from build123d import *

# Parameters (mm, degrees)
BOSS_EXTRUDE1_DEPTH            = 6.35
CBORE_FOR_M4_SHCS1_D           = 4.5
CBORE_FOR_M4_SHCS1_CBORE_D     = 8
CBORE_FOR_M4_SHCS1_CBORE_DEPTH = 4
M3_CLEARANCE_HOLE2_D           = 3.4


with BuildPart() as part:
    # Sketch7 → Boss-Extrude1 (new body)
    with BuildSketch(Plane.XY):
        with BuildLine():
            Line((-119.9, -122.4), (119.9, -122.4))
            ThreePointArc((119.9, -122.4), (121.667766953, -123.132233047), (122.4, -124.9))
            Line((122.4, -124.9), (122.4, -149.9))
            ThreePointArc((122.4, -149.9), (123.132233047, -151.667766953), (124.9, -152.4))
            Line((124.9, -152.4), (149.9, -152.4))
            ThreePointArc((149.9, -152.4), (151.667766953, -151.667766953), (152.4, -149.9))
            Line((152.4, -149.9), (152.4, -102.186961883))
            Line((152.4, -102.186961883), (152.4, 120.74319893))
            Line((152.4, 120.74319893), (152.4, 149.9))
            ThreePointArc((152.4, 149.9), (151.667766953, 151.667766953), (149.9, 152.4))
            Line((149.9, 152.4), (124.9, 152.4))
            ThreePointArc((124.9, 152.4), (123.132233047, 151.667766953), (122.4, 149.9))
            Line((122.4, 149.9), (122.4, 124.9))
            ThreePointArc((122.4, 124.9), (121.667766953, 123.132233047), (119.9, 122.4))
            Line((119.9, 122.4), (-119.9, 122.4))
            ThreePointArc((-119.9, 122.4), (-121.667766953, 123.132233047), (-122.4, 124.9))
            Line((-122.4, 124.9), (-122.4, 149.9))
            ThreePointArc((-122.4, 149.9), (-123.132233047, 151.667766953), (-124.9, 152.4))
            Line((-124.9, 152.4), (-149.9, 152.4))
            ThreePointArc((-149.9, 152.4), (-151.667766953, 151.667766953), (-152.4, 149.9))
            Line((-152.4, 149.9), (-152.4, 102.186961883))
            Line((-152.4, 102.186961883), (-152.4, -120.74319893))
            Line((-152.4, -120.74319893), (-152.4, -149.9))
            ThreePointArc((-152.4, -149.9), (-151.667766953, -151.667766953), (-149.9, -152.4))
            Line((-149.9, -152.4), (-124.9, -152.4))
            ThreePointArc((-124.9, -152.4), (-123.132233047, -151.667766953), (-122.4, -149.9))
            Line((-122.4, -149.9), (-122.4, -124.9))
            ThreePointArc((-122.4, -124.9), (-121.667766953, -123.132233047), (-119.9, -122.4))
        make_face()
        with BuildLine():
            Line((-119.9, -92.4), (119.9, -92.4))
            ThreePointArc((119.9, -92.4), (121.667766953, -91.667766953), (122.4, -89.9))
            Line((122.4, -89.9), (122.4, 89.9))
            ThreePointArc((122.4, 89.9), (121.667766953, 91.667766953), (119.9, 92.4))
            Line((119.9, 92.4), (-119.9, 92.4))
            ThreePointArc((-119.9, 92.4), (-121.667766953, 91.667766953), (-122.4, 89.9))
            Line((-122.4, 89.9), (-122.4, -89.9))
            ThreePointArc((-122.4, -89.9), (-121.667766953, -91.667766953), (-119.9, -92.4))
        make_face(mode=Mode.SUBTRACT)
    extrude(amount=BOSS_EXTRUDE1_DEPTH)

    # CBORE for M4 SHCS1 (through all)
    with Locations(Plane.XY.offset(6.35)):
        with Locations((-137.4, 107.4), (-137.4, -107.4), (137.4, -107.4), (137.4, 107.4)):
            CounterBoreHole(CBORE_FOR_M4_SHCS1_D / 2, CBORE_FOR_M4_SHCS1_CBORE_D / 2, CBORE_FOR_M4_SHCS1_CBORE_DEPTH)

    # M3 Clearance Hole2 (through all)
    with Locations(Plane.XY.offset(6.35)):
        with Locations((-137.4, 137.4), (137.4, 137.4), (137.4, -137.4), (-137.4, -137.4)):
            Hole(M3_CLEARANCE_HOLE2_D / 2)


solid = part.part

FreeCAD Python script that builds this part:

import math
import FreeCAD as App
import Part
import Sketcher
from FreeCAD import Vector
Q = App.Units.Quantity

doc = App.newDocument("Part")
body = doc.addObject("PartDesign::Body", "Body")

# Sketch on XY plane
sketch1 = body.newObject("Sketcher::SketchObject", "Sketch")
sketch1.AttachmentSupport = (doc.getObject("XY_Plane"), [""])
sketch1.MapMode = "FlatFace"
sketch1.addGeometry(Part.LineSegment(Vector(-119.9, -122.4, 0), Vector(119.9, -122.4, 0)), False)
sketch1.addGeometry(Part.ArcOfCircle(Part.Circle(Vector(119.9, -124.9, 0), Vector(0, 0, 1), 2.5), math.radians(0), math.radians(90)), False)
sketch1.addGeometry(Part.LineSegment(Vector(122.4, -124.9, 0), Vector(122.4, -149.9, 0)), False)
sketch1.addGeometry(Part.ArcOfCircle(Part.Circle(Vector(124.9, -149.9, 0), Vector(0, 0, 1), 2.5), math.radians(180), math.radians(270)), False)
sketch1.addGeometry(Part.LineSegment(Vector(124.9, -152.4, 0), Vector(149.9, -152.4, 0)), False)
sketch1.addGeometry(Part.ArcOfCircle(Part.Circle(Vector(149.9, -149.9, 0), Vector(0, 0, 1), 2.5), math.radians(-90), math.radians(0)), False)
sketch1.addGeometry(Part.LineSegment(Vector(152.4, -149.9, 0), Vector(152.4, 149.9, 0)), False)
sketch1.addGeometry(Part.ArcOfCircle(Part.Circle(Vector(149.9, 149.9, 0), Vector(0, 0, 1), 2.5), math.radians(0), math.radians(90)), False)
sketch1.addGeometry(Part.LineSegment(Vector(149.9, 152.4, 0), Vector(124.9, 152.4, 0)), False)
sketch1.addGeometry(Part.ArcOfCircle(Part.Circle(Vector(124.9, 149.9, 0), Vector(0, 0, 1), 2.5), math.radians(90), math.radians(180)), False)
sketch1.addGeometry(Part.LineSegment(Vector(122.4, 149.9, 0), Vector(122.4, 124.9, 0)), False)
sketch1.addGeometry(Part.ArcOfCircle(Part.Circle(Vector(119.9, 124.9, 0), Vector(0, 0, 1), 2.5), math.radians(-90), math.radians(0)), False)
sketch1.addGeometry(Part.LineSegment(Vector(119.9, 122.4, 0), Vector(-119.9, 122.4, 0)), False)
sketch1.addGeometry(Part.ArcOfCircle(Part.Circle(Vector(-119.9, 124.9, 0), Vector(0, 0, 1), 2.5), math.radians(180), math.radians(270)), False)
sketch1.addGeometry(Part.LineSegment(Vector(-122.4, 124.9, 0), Vector(-122.4, 149.9, 0)), False)
sketch1.addGeometry(Part.ArcOfCircle(Part.Circle(Vector(-124.9, 149.9, 0), Vector(0, 0, 1), 2.5), math.radians(0), math.radians(90)), False)
sketch1.addGeometry(Part.LineSegment(Vector(-124.9, 152.4, 0), Vector(-149.9, 152.4, 0)), False)
sketch1.addGeometry(Part.ArcOfCircle(Part.Circle(Vector(-149.9, 149.9, 0), Vector(0, 0, 1), 2.5), math.radians(90), math.radians(180)), False)
sketch1.addGeometry(Part.LineSegment(Vector(-152.4, 149.9, 0), Vector(-152.4, -149.9, 0)), False)
sketch1.addGeometry(Part.ArcOfCircle(Part.Circle(Vector(-149.9, -149.9, 0), Vector(0, 0, 1), 2.5), math.radians(180), math.radians(270)), False)
sketch1.addGeometry(Part.LineSegment(Vector(-149.9, -152.4, 0), Vector(-124.9, -152.4, 0)), False)
sketch1.addGeometry(Part.ArcOfCircle(Part.Circle(Vector(-124.9, -149.9, 0), Vector(0, 0, 1), 2.5), math.radians(-90), math.radians(0)), False)
sketch1.addGeometry(Part.LineSegment(Vector(-122.4, -149.9, 0), Vector(-122.4, -124.9, 0)), False)
sketch1.addGeometry(Part.ArcOfCircle(Part.Circle(Vector(-119.9, -124.9, 0), Vector(0, 0, 1), 2.5), math.radians(90), math.radians(180)), False)
sketch1.addGeometry(Part.LineSegment(Vector(119.9, -92.4, 0), Vector(-119.9, -92.4, 0)), False)
sketch1.addGeometry(Part.ArcOfCircle(Part.Circle(Vector(-119.9, -89.9, 0), Vector(0, 0, 1), 2.5), math.radians(180), math.radians(270)), False)
sketch1.addGeometry(Part.LineSegment(Vector(-122.4, -89.9, 0), Vector(-122.4, 89.9, 0)), False)
sketch1.addGeometry(Part.ArcOfCircle(Part.Circle(Vector(-119.9, 89.9, 0), Vector(0, 0, 1), 2.5), math.radians(90), math.radians(180)), False)
sketch1.addGeometry(Part.LineSegment(Vector(-119.9, 92.4, 0), Vector(119.9, 92.4, 0)), False)
sketch1.addGeometry(Part.ArcOfCircle(Part.Circle(Vector(119.9, 89.9, 0), Vector(0, 0, 1), 2.5), math.radians(0), math.radians(90)), False)
sketch1.addGeometry(Part.LineSegment(Vector(122.4, 89.9, 0), Vector(122.4, -89.9, 0)), False)
sketch1.addGeometry(Part.ArcOfCircle(Part.Circle(Vector(119.9, -89.9, 0), Vector(0, 0, 1), 2.5), math.radians(-90), math.radians(0)), False)
sketch1.addConstraint(Sketcher.Constraint("Tangent", 0, 2, 1, 2))
sketch1.addConstraint(Sketcher.Constraint("Tangent", 1, 1, 2, 1))
sketch1.addConstraint(Sketcher.Constraint("Tangent", 2, 2, 3, 1))
sketch1.addConstraint(Sketcher.Constraint("Tangent", 3, 2, 4, 1))
sketch1.addConstraint(Sketcher.Constraint("Tangent", 4, 2, 5, 1))
sketch1.addConstraint(Sketcher.Constraint("Tangent", 5, 2, 6, 1))
sketch1.addConstraint(Sketcher.Constraint("Tangent", 6, 2, 7, 1))
sketch1.addConstraint(Sketcher.Constraint("Tangent", 7, 2, 8, 1))
sketch1.addConstraint(Sketcher.Constraint("Tangent", 8, 2, 9, 1))
sketch1.addConstraint(Sketcher.Constraint("Tangent", 9, 2, 10, 1))
sketch1.addConstraint(Sketcher.Constraint("Tangent", 10, 2, 11, 2))
sketch1.addConstraint(Sketcher.Constraint("Tangent", 11, 1, 12, 1))
sketch1.addConstraint(Sketcher.Constraint("Tangent", 12, 2, 13, 2))
sketch1.addConstraint(Sketcher.Constraint("Tangent", 13, 1, 14, 1))
sketch1.addConstraint(Sketcher.Constraint("Tangent", 14, 2, 15, 1))
sketch1.addConstraint(Sketcher.Constraint("Tangent", 15, 2, 16, 1))
sketch1.addConstraint(Sketcher.Constraint("Tangent", 16, 2, 17, 1))
sketch1.addConstraint(Sketcher.Constraint("Tangent", 17, 2, 18, 1))
sketch1.addConstraint(Sketcher.Constraint("Tangent", 18, 2, 19, 1))
sketch1.addConstraint(Sketcher.Constraint("Tangent", 19, 2, 20, 1))
sketch1.addConstraint(Sketcher.Constraint("Tangent", 20, 2, 21, 1))
sketch1.addConstraint(Sketcher.Constraint("Tangent", 21, 2, 22, 1))
sketch1.addConstraint(Sketcher.Constraint("Tangent", 22, 2, 23, 2))
sketch1.addConstraint(Sketcher.Constraint("Tangent", 23, 1, 0, 1))
sketch1.addConstraint(Sketcher.Constraint("Tangent", 24, 2, 25, 2))
sketch1.addConstraint(Sketcher.Constraint("Tangent", 25, 1, 26, 1))
sketch1.addConstraint(Sketcher.Constraint("Tangent", 26, 2, 27, 2))
sketch1.addConstraint(Sketcher.Constraint("Tangent", 27, 1, 28, 1))
sketch1.addConstraint(Sketcher.Constraint("Tangent", 28, 2, 29, 2))
sketch1.addConstraint(Sketcher.Constraint("Tangent", 29, 1, 30, 1))
sketch1.addConstraint(Sketcher.Constraint("Tangent", 30, 2, 31, 2))
sketch1.addConstraint(Sketcher.Constraint("Tangent", 31, 1, 24, 1))
sketch1.addConstraint(Sketcher.Constraint("Horizontal", 0))
sketch1.addConstraint(Sketcher.Constraint("Vertical", 2))
sketch1.addConstraint(Sketcher.Constraint("Horizontal", 4))
sketch1.addConstraint(Sketcher.Constraint("Vertical", 6))
sketch1.addConstraint(Sketcher.Constraint("Horizontal", 8))
sketch1.addConstraint(Sketcher.Constraint("Vertical", 10))
sketch1.addConstraint(Sketcher.Constraint("Horizontal", 12))
sketch1.addConstraint(Sketcher.Constraint("Vertical", 14))
sketch1.addConstraint(Sketcher.Constraint("Horizontal", 16))
sketch1.addConstraint(Sketcher.Constraint("Vertical", 18))
sketch1.addConstraint(Sketcher.Constraint("Horizontal", 20))
sketch1.addConstraint(Sketcher.Constraint("Vertical", 22))
sketch1.addConstraint(Sketcher.Constraint("Horizontal", 24))
sketch1.addConstraint(Sketcher.Constraint("Vertical", 26))
sketch1.addConstraint(Sketcher.Constraint("Horizontal", 28))
sketch1.addConstraint(Sketcher.Constraint("Vertical", 30))
sketch1.addConstraint(Sketcher.Constraint("Equal", 1, 3))
sketch1.addConstraint(Sketcher.Constraint("Equal", 3, 5))
sketch1.addConstraint(Sketcher.Constraint("Equal", 5, 7))
sketch1.addConstraint(Sketcher.Constraint("Equal", 7, 9))
sketch1.addConstraint(Sketcher.Constraint("Equal", 9, 11))
sketch1.addConstraint(Sketcher.Constraint("Equal", 11, 13))
sketch1.addConstraint(Sketcher.Constraint("Equal", 13, 15))
sketch1.addConstraint(Sketcher.Constraint("Equal", 15, 17))
sketch1.addConstraint(Sketcher.Constraint("Equal", 17, 19))
sketch1.addConstraint(Sketcher.Constraint("Equal", 19, 21))
sketch1.addConstraint(Sketcher.Constraint("Equal", 21, 23))
sketch1.addConstraint(Sketcher.Constraint("Equal", 23, 25))
sketch1.addConstraint(Sketcher.Constraint("Equal", 25, 27))
sketch1.addConstraint(Sketcher.Constraint("Equal", 27, 29))
sketch1.addConstraint(Sketcher.Constraint("Equal", 29, 31))
sketch1.addConstraint(Sketcher.Constraint("Symmetric", 1, 3, 13, 3, -1, 1))
sketch1.addConstraint(Sketcher.Constraint("Symmetric", 5, 3, 17, 3, -1, 1))
sketch1.addConstraint(Sketcher.Constraint("Symmetric", 9, 3, 21, 3, -1, 1))
sketch1.addConstraint(Sketcher.Constraint("Symmetric", 25, 3, 29, 3, -1, 1))
sketch1.addConstraint(Sketcher.Constraint("Symmetric", 9, 3, 15, 3, -2))
sketch1.addConstraint(Sketcher.Constraint("Vertical", 23, 3, 25, 3))
sketch1.addConstraint(Sketcher.Constraint("Equal", 20, 2))
sketch1.addConstraint(Sketcher.Constraint("Radius", 1, Q("2.5 mm")))
sketch1.addConstraint(Sketcher.Constraint("DistanceX", 4, 1, 4, 2, Q("25 mm")))
sketch1.addConstraint(Sketcher.Constraint("DistanceX", 0, 1, 0, 2, Q("239.8 mm")))
sketch1.addConstraint(Sketcher.Constraint("DistanceY", 6, 1, 6, 2, Q("299.8 mm")))
sketch1.addConstraint(Sketcher.Constraint("DistanceY", 26, 1, 26, 2, Q("179.8 mm")))
pad1 = body.newObject("PartDesign::Pad", "Pad")
pad1.Profile = sketch1
pad1.Length = 6.35

# Sketch on XY plane
sketch2 = body.newObject("Sketcher::SketchObject", "Sketch001")
sketch2.AttachmentSupport = (doc.getObject("XY_Plane"), [""])
sketch2.MapMode = "FlatFace"
sketch2.AttachmentOffset = App.Placement(Vector(0, 0, 6.35), App.Rotation())
sketch2.addGeometry(Part.Circle(Vector(-137.4, 107.4, 0), Vector(0, 0, 1), 2.2), False)
sketch2.addGeometry(Part.Circle(Vector(-137.4, -107.4, 0), Vector(0, 0, 1), 2.2), False)
sketch2.addGeometry(Part.Circle(Vector(137.4, -107.4, 0), Vector(0, 0, 1), 2.2), False)
sketch2.addGeometry(Part.Circle(Vector(137.4, 107.4, 0), Vector(0, 0, 1), 2.2), False)
sketch2.addConstraint(Sketcher.Constraint("Equal", 0, 1))
sketch2.addConstraint(Sketcher.Constraint("Equal", 1, 2))
sketch2.addConstraint(Sketcher.Constraint("Equal", 2, 3))
sketch2.addConstraint(Sketcher.Constraint("Symmetric", 0, 3, 2, 3, -1, 1))
sketch2.addConstraint(Sketcher.Constraint("Symmetric", 1, 3, 3, 3, -1, 1))
sketch2.addConstraint(Sketcher.Constraint("Symmetric", 1, 3, 2, 3, -2))
sketch2.addConstraint(Sketcher.Constraint("Diameter", 0, Q("4.5 mm")))
sketch2.addConstraint(Sketcher.Constraint("DistanceX", 0, 3, -1, 1, Q("137.4 mm")))
sketch2.addConstraint(Sketcher.Constraint("DistanceY", -1, 1, 0, 3, Q("107.4 mm")))
doc.recompute()
hole = body.newObject("PartDesign::Hole", "Hole")
hole.Profile = sketch2
hole.ThreadType = "None"
hole.Diameter = 4.5
hole.DepthType = "ThroughAll"
hole.HoleCutType = "Counterbore"
hole.HoleCutDiameter = 8
hole.HoleCutDepth = 4

# Sketch on XY plane
sketch3 = body.newObject("Sketcher::SketchObject", "Sketch002")
sketch3.AttachmentSupport = (doc.getObject("XY_Plane"), [""])
sketch3.MapMode = "FlatFace"
sketch3.AttachmentOffset = App.Placement(Vector(0, 0, 6.35), App.Rotation())
sketch3.addGeometry(Part.Circle(Vector(-137.4, 137.4, 0), Vector(0, 0, 1), 1.7), False)
sketch3.addGeometry(Part.Circle(Vector(137.4, 137.4, 0), Vector(0, 0, 1), 1.7), False)
sketch3.addGeometry(Part.Circle(Vector(137.4, -137.4, 0), Vector(0, 0, 1), 1.7), False)
sketch3.addGeometry(Part.Circle(Vector(-137.4, -137.4, 0), Vector(0, 0, 1), 1.7), False)
sketch3.addConstraint(Sketcher.Constraint("Equal", 0, 1))
sketch3.addConstraint(Sketcher.Constraint("Equal", 1, 2))
sketch3.addConstraint(Sketcher.Constraint("Equal", 2, 3))
sketch3.addConstraint(Sketcher.Constraint("Symmetric", 0, 3, 2, 3, -1, 1))
sketch3.addConstraint(Sketcher.Constraint("Symmetric", 1, 3, 3, 3, -1, 1))
sketch3.addConstraint(Sketcher.Constraint("Symmetric", 0, 3, 1, 3, -2))
sketch3.addConstraint(Sketcher.Constraint("Diameter", 0, Q("3.4 mm")))
sketch3.addConstraint(Sketcher.Constraint("DistanceX", 0, 3, -1, 1, Q("137.4 mm")))
sketch3.addConstraint(Sketcher.Constraint("DistanceY", -1, 1, 0, 3, Q("137.4 mm")))
doc.recompute()
hole2 = body.newObject("PartDesign::Hole", "Hole001")
hole2.Profile = sketch3
hole2.ThreadType = "None"
hole2.Diameter = 3.4
hole2.DepthType = "ThroughAll"

doc.recompute()
